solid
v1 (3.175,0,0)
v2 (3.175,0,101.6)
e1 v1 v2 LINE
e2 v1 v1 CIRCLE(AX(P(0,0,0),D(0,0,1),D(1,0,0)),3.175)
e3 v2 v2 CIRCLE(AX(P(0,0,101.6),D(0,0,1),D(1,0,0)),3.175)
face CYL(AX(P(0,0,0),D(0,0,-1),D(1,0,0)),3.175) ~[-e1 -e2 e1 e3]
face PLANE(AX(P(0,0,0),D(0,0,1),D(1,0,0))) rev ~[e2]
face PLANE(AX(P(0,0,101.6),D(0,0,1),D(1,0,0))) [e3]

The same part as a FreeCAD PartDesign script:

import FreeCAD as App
import Part
import Sketcher
from FreeCAD import Vector
Q = App.Units.Quantity

doc = App.newDocument("Part")
body = doc.addObject("PartDesign::Body", "Body")

# Sketch on XY plane
sketch1 = body.newObject("Sketcher::SketchObject", "Sketch")
sketch1.AttachmentSupport = (doc.getObject("XY_Plane"), [""])
sketch1.MapMode = "FlatFace"
sketch1.addGeometry(Part.Circle(Vector(0, 0, 0), Vector(0, 0, 1), 3.2), False)
sketch1.addConstraint(Sketcher.Constraint("Coincident", 0, 3, -1, 1))
sketch1.addConstraint(Sketcher.Constraint("Diameter", 0, Q("0.25 in")))
pad1 = body.newObject("PartDesign::Pad", "Pad")
pad1.Profile = sketch1
pad1.Length = Q("4 in")

doc.recompute()
